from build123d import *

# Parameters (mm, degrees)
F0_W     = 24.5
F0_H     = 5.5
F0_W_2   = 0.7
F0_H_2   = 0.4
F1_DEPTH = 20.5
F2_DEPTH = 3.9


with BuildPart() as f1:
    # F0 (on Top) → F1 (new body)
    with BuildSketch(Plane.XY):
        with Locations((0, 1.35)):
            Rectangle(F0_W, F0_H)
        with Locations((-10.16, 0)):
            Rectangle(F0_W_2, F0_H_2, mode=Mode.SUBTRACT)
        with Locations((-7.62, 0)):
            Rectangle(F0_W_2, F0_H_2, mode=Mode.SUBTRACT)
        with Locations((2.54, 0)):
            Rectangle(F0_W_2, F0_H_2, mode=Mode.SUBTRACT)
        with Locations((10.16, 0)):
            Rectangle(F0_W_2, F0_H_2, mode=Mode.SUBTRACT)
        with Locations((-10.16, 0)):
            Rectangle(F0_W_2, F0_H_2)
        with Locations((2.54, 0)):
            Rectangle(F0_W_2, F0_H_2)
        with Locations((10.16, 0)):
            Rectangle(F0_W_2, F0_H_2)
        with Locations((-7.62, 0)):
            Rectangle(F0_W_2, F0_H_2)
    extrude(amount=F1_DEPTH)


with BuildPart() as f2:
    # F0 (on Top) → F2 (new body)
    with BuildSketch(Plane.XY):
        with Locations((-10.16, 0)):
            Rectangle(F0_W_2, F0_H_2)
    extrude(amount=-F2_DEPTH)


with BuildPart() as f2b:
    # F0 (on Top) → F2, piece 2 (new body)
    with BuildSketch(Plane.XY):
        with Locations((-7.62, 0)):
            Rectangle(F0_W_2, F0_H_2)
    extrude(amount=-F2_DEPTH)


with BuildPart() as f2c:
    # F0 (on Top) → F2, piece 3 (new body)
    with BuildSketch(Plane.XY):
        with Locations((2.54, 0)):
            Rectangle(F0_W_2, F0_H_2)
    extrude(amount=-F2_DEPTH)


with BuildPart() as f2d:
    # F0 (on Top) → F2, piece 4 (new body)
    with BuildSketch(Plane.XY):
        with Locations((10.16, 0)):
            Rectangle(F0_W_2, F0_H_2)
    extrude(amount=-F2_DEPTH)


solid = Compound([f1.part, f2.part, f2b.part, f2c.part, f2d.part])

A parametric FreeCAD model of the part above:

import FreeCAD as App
import Part
import Sketcher


def add_polygon(sketch, points):
    """Adds a closed chain of lines whose ends are joined by coincident constraints."""
    first, n = sketch.GeometryCount, len(points)
    for a, b in zip(points, points[1:] + points[:1]):
        sketch.addGeometry(Part.LineSegment(App.Vector(*a, 0), App.Vector(*b, 0)), False)
    for i in range(n):
        sketch.addConstraint(Sketcher.Constraint("Coincident", first + i, 2, first + (i + 1) % n, 1))

doc = App.newDocument("Part")
body = doc.addObject("PartDesign::Body", "Body")

# Sketch on XY plane
sketch1 = body.newObject("Sketcher::SketchObject", "Sketch")
sketch1.AttachmentSupport = (doc.getObject("XY_Plane"), [""])
sketch1.MapMode = "FlatFace"
add_polygon(sketch1, [(-12, 4), (-12, -1), (12, -1), (12, 4)])  # lines 0-3
sketch1.addConstraint(Sketcher.Constraint("Vertical", 0))
sketch1.addConstraint(Sketcher.Constraint("Horizontal", 1))
sketch1.addConstraint(Sketcher.Constraint("Vertical", 2))
sketch1.addConstraint(Sketcher.Constraint("Horizontal", 3))
sketch1.addConstraint(Sketcher.Constraint("DistanceX", 1, 1, 1, 2, 24.5))
sketch1.addConstraint(Sketcher.Constraint("DistanceY", 0, 2, 0, 1, 5.5))
sketch1.addConstraint(Sketcher.Constraint("DistanceY", 0, 2, -1, 1, 1.4))
sketch1.addConstraint(Sketcher.Constraint("DistanceX", 0, 2, -1, 1, 12.25))
pad1 = body.newObject("PartDesign::Pad", "Pad")
pad1.Profile = sketch1
pad1.Length = 20.5
body2 = doc.addObject("PartDesign::Body", "Body001")

# Sketch on XY plane
sketch2 = body2.newObject("Sketcher::SketchObject", "Sketch001")
sketch2.AttachmentSupport = (doc.getObject("XY_Plane001"), [""])
sketch2.MapMode = "FlatFace"
add_polygon(sketch2, [(-10.51, 0.2), (-10.51, -0.2), (-9.81, -0.2), (-9.81, 0.2)])  # lines 0-3
sketch2.addConstraint(Sketcher.Constraint("Vertical", 0))
sketch2.addConstraint(Sketcher.Constraint("Horizontal", 1))
sketch2.addConstraint(Sketcher.Constraint("Vertical", 2))
sketch2.addConstraint(Sketcher.Constraint("Horizontal", 3))
sketch2.addConstraint(Sketcher.Constraint("DistanceX", 1, 1, 1, 2, 0.7))
sketch2.addConstraint(Sketcher.Constraint("DistanceY", 0, 2, 0, 1, 0.4))
sketch2.addConstraint(Sketcher.Constraint("DistanceY", 0, 2, -1, 1, 0.2))
sketch2.addConstraint(Sketcher.Constraint("DistanceX", 0, 2, -1, 1, 10.51))
pad2 = body2.newObject("PartDesign::Pad", "Pad001")
pad2.Profile = sketch2
pad2.Length = 3.9
pad2.Reversed = True
body3 = doc.addObject("PartDesign::Body", "Body002")

# Sketch on XY plane
sketch3 = body3.newObject("Sketcher::SketchObject", "Sketch002")
sketch3.AttachmentSupport = (doc.getObject("XY_Plane002"), [""])
sketch3.MapMode = "FlatFace"
add_polygon(sketch3, [(-7.97, 0.2), (-7.97, -0.2), (-7.27, -0.2), (-7.27, 0.2)])  # lines 0-3
sketch3.addConstraint(Sketcher.Constraint("Vertical", 0))
sketch3.addConstraint(Sketcher.Constraint("Horizontal", 1))
sketch3.addConstraint(Sketcher.Constraint("Vertical", 2))
sketch3.addConstraint(Sketcher.Constraint("Horizontal", 3))
sketch3.addConstraint(Sketcher.Constraint("DistanceX", 1, 1, 1, 2, 0.7))
sketch3.addConstraint(Sketcher.Constraint("DistanceY", 0, 2, 0, 1, 0.4))
sketch3.addConstraint(Sketcher.Constraint("DistanceY", 0, 2, -1, 1, 0.2))
sketch3.addConstraint(Sketcher.Constraint("DistanceX", 0, 2, -1, 1, 7.97))
pad3 = body3.newObject("PartDesign::Pad", "Pad002")
pad3.Profile = sketch3
pad3.Length = 3.9
pad3.Reversed = True
body4 = doc.addObject("PartDesign::Body", "Body003")

# Sketch on XY plane
sketch4 = body4.newObject("Sketcher::SketchObject", "Sketch003")
sketch4.AttachmentSupport = (doc.getObject("XY_Plane003"), [""])
sketch4.MapMode = "FlatFace"
add_polygon(sketch4, [(2.19, 0.2), (2.19, -0.2), (2.89, -0.2), (2.89, 0.2)])  # lines 0-3
sketch4.addConstraint(Sketcher.Constraint("Vertical", 0))
sketch4.addConstraint(Sketcher.Constraint("Horizontal", 1))
sketch4.addConstraint(Sketcher.Constraint("Vertical", 2))
sketch4.addConstraint(Sketcher.Constraint("Horizontal", 3))
sketch4.addConstraint(Sketcher.Constraint("DistanceX", 1, 1, 1, 2, 0.7))
sketch4.addConstraint(Sketcher.Constraint("DistanceY", 0, 2, 0, 1, 0.4))
sketch4.addConstraint(Sketcher.Constraint("DistanceY", 0, 2, -1, 1, 0.2))
sketch4.addConstraint(Sketcher.Constraint("DistanceX", -1, 1, 0, 2, 2.19))
pad4 = body4.newObject("PartDesign::Pad", "Pad003")
pad4.Profile = sketch4
pad4.Length = 3.9
pad4.Reversed = True
body5 = doc.addObject("PartDesign::Body", "Body004")

# Sketch on XY plane
sketch5 = body5.newObject("Sketcher::SketchObject", "Sketch004")
sketch5.AttachmentSupport = (doc.getObject("XY_Plane004"), [""])
sketch5.MapMode = "FlatFace"
add_polygon(sketch5, [(9.81, 0.2), (9.81, -0.2), (10.51, -0.2), (10.51, 0.2)])  # lines 0-3
sketch5.addConstraint(Sketcher.Constraint("Vertical", 0))
sketch5.addConstraint(Sketcher.Constraint("Horizontal", 1))
sketch5.addConstraint(Sketcher.Constraint("Vertical", 2))
sketch5.addConstraint(Sketcher.Constraint("Horizontal", 3))
sketch5.addConstraint(Sketcher.Constraint("DistanceX", 1, 1, 1, 2, 0.7))
sketch5.addConstraint(Sketcher.Constraint("DistanceY", 0, 2, 0, 1, 0.4))
sketch5.addConstraint(Sketcher.Constraint("DistanceY", 0, 2, -1, 1, 0.2))
sketch5.addConstraint(Sketcher.Constraint("DistanceX", -1, 1, 0, 2, 9.81))
pad5 = body5.newObject("PartDesign::Pad", "Pad004")
pad5.Profile = sketch5
pad5.Length = 3.9
pad5.Reversed = True

doc.recompute()
